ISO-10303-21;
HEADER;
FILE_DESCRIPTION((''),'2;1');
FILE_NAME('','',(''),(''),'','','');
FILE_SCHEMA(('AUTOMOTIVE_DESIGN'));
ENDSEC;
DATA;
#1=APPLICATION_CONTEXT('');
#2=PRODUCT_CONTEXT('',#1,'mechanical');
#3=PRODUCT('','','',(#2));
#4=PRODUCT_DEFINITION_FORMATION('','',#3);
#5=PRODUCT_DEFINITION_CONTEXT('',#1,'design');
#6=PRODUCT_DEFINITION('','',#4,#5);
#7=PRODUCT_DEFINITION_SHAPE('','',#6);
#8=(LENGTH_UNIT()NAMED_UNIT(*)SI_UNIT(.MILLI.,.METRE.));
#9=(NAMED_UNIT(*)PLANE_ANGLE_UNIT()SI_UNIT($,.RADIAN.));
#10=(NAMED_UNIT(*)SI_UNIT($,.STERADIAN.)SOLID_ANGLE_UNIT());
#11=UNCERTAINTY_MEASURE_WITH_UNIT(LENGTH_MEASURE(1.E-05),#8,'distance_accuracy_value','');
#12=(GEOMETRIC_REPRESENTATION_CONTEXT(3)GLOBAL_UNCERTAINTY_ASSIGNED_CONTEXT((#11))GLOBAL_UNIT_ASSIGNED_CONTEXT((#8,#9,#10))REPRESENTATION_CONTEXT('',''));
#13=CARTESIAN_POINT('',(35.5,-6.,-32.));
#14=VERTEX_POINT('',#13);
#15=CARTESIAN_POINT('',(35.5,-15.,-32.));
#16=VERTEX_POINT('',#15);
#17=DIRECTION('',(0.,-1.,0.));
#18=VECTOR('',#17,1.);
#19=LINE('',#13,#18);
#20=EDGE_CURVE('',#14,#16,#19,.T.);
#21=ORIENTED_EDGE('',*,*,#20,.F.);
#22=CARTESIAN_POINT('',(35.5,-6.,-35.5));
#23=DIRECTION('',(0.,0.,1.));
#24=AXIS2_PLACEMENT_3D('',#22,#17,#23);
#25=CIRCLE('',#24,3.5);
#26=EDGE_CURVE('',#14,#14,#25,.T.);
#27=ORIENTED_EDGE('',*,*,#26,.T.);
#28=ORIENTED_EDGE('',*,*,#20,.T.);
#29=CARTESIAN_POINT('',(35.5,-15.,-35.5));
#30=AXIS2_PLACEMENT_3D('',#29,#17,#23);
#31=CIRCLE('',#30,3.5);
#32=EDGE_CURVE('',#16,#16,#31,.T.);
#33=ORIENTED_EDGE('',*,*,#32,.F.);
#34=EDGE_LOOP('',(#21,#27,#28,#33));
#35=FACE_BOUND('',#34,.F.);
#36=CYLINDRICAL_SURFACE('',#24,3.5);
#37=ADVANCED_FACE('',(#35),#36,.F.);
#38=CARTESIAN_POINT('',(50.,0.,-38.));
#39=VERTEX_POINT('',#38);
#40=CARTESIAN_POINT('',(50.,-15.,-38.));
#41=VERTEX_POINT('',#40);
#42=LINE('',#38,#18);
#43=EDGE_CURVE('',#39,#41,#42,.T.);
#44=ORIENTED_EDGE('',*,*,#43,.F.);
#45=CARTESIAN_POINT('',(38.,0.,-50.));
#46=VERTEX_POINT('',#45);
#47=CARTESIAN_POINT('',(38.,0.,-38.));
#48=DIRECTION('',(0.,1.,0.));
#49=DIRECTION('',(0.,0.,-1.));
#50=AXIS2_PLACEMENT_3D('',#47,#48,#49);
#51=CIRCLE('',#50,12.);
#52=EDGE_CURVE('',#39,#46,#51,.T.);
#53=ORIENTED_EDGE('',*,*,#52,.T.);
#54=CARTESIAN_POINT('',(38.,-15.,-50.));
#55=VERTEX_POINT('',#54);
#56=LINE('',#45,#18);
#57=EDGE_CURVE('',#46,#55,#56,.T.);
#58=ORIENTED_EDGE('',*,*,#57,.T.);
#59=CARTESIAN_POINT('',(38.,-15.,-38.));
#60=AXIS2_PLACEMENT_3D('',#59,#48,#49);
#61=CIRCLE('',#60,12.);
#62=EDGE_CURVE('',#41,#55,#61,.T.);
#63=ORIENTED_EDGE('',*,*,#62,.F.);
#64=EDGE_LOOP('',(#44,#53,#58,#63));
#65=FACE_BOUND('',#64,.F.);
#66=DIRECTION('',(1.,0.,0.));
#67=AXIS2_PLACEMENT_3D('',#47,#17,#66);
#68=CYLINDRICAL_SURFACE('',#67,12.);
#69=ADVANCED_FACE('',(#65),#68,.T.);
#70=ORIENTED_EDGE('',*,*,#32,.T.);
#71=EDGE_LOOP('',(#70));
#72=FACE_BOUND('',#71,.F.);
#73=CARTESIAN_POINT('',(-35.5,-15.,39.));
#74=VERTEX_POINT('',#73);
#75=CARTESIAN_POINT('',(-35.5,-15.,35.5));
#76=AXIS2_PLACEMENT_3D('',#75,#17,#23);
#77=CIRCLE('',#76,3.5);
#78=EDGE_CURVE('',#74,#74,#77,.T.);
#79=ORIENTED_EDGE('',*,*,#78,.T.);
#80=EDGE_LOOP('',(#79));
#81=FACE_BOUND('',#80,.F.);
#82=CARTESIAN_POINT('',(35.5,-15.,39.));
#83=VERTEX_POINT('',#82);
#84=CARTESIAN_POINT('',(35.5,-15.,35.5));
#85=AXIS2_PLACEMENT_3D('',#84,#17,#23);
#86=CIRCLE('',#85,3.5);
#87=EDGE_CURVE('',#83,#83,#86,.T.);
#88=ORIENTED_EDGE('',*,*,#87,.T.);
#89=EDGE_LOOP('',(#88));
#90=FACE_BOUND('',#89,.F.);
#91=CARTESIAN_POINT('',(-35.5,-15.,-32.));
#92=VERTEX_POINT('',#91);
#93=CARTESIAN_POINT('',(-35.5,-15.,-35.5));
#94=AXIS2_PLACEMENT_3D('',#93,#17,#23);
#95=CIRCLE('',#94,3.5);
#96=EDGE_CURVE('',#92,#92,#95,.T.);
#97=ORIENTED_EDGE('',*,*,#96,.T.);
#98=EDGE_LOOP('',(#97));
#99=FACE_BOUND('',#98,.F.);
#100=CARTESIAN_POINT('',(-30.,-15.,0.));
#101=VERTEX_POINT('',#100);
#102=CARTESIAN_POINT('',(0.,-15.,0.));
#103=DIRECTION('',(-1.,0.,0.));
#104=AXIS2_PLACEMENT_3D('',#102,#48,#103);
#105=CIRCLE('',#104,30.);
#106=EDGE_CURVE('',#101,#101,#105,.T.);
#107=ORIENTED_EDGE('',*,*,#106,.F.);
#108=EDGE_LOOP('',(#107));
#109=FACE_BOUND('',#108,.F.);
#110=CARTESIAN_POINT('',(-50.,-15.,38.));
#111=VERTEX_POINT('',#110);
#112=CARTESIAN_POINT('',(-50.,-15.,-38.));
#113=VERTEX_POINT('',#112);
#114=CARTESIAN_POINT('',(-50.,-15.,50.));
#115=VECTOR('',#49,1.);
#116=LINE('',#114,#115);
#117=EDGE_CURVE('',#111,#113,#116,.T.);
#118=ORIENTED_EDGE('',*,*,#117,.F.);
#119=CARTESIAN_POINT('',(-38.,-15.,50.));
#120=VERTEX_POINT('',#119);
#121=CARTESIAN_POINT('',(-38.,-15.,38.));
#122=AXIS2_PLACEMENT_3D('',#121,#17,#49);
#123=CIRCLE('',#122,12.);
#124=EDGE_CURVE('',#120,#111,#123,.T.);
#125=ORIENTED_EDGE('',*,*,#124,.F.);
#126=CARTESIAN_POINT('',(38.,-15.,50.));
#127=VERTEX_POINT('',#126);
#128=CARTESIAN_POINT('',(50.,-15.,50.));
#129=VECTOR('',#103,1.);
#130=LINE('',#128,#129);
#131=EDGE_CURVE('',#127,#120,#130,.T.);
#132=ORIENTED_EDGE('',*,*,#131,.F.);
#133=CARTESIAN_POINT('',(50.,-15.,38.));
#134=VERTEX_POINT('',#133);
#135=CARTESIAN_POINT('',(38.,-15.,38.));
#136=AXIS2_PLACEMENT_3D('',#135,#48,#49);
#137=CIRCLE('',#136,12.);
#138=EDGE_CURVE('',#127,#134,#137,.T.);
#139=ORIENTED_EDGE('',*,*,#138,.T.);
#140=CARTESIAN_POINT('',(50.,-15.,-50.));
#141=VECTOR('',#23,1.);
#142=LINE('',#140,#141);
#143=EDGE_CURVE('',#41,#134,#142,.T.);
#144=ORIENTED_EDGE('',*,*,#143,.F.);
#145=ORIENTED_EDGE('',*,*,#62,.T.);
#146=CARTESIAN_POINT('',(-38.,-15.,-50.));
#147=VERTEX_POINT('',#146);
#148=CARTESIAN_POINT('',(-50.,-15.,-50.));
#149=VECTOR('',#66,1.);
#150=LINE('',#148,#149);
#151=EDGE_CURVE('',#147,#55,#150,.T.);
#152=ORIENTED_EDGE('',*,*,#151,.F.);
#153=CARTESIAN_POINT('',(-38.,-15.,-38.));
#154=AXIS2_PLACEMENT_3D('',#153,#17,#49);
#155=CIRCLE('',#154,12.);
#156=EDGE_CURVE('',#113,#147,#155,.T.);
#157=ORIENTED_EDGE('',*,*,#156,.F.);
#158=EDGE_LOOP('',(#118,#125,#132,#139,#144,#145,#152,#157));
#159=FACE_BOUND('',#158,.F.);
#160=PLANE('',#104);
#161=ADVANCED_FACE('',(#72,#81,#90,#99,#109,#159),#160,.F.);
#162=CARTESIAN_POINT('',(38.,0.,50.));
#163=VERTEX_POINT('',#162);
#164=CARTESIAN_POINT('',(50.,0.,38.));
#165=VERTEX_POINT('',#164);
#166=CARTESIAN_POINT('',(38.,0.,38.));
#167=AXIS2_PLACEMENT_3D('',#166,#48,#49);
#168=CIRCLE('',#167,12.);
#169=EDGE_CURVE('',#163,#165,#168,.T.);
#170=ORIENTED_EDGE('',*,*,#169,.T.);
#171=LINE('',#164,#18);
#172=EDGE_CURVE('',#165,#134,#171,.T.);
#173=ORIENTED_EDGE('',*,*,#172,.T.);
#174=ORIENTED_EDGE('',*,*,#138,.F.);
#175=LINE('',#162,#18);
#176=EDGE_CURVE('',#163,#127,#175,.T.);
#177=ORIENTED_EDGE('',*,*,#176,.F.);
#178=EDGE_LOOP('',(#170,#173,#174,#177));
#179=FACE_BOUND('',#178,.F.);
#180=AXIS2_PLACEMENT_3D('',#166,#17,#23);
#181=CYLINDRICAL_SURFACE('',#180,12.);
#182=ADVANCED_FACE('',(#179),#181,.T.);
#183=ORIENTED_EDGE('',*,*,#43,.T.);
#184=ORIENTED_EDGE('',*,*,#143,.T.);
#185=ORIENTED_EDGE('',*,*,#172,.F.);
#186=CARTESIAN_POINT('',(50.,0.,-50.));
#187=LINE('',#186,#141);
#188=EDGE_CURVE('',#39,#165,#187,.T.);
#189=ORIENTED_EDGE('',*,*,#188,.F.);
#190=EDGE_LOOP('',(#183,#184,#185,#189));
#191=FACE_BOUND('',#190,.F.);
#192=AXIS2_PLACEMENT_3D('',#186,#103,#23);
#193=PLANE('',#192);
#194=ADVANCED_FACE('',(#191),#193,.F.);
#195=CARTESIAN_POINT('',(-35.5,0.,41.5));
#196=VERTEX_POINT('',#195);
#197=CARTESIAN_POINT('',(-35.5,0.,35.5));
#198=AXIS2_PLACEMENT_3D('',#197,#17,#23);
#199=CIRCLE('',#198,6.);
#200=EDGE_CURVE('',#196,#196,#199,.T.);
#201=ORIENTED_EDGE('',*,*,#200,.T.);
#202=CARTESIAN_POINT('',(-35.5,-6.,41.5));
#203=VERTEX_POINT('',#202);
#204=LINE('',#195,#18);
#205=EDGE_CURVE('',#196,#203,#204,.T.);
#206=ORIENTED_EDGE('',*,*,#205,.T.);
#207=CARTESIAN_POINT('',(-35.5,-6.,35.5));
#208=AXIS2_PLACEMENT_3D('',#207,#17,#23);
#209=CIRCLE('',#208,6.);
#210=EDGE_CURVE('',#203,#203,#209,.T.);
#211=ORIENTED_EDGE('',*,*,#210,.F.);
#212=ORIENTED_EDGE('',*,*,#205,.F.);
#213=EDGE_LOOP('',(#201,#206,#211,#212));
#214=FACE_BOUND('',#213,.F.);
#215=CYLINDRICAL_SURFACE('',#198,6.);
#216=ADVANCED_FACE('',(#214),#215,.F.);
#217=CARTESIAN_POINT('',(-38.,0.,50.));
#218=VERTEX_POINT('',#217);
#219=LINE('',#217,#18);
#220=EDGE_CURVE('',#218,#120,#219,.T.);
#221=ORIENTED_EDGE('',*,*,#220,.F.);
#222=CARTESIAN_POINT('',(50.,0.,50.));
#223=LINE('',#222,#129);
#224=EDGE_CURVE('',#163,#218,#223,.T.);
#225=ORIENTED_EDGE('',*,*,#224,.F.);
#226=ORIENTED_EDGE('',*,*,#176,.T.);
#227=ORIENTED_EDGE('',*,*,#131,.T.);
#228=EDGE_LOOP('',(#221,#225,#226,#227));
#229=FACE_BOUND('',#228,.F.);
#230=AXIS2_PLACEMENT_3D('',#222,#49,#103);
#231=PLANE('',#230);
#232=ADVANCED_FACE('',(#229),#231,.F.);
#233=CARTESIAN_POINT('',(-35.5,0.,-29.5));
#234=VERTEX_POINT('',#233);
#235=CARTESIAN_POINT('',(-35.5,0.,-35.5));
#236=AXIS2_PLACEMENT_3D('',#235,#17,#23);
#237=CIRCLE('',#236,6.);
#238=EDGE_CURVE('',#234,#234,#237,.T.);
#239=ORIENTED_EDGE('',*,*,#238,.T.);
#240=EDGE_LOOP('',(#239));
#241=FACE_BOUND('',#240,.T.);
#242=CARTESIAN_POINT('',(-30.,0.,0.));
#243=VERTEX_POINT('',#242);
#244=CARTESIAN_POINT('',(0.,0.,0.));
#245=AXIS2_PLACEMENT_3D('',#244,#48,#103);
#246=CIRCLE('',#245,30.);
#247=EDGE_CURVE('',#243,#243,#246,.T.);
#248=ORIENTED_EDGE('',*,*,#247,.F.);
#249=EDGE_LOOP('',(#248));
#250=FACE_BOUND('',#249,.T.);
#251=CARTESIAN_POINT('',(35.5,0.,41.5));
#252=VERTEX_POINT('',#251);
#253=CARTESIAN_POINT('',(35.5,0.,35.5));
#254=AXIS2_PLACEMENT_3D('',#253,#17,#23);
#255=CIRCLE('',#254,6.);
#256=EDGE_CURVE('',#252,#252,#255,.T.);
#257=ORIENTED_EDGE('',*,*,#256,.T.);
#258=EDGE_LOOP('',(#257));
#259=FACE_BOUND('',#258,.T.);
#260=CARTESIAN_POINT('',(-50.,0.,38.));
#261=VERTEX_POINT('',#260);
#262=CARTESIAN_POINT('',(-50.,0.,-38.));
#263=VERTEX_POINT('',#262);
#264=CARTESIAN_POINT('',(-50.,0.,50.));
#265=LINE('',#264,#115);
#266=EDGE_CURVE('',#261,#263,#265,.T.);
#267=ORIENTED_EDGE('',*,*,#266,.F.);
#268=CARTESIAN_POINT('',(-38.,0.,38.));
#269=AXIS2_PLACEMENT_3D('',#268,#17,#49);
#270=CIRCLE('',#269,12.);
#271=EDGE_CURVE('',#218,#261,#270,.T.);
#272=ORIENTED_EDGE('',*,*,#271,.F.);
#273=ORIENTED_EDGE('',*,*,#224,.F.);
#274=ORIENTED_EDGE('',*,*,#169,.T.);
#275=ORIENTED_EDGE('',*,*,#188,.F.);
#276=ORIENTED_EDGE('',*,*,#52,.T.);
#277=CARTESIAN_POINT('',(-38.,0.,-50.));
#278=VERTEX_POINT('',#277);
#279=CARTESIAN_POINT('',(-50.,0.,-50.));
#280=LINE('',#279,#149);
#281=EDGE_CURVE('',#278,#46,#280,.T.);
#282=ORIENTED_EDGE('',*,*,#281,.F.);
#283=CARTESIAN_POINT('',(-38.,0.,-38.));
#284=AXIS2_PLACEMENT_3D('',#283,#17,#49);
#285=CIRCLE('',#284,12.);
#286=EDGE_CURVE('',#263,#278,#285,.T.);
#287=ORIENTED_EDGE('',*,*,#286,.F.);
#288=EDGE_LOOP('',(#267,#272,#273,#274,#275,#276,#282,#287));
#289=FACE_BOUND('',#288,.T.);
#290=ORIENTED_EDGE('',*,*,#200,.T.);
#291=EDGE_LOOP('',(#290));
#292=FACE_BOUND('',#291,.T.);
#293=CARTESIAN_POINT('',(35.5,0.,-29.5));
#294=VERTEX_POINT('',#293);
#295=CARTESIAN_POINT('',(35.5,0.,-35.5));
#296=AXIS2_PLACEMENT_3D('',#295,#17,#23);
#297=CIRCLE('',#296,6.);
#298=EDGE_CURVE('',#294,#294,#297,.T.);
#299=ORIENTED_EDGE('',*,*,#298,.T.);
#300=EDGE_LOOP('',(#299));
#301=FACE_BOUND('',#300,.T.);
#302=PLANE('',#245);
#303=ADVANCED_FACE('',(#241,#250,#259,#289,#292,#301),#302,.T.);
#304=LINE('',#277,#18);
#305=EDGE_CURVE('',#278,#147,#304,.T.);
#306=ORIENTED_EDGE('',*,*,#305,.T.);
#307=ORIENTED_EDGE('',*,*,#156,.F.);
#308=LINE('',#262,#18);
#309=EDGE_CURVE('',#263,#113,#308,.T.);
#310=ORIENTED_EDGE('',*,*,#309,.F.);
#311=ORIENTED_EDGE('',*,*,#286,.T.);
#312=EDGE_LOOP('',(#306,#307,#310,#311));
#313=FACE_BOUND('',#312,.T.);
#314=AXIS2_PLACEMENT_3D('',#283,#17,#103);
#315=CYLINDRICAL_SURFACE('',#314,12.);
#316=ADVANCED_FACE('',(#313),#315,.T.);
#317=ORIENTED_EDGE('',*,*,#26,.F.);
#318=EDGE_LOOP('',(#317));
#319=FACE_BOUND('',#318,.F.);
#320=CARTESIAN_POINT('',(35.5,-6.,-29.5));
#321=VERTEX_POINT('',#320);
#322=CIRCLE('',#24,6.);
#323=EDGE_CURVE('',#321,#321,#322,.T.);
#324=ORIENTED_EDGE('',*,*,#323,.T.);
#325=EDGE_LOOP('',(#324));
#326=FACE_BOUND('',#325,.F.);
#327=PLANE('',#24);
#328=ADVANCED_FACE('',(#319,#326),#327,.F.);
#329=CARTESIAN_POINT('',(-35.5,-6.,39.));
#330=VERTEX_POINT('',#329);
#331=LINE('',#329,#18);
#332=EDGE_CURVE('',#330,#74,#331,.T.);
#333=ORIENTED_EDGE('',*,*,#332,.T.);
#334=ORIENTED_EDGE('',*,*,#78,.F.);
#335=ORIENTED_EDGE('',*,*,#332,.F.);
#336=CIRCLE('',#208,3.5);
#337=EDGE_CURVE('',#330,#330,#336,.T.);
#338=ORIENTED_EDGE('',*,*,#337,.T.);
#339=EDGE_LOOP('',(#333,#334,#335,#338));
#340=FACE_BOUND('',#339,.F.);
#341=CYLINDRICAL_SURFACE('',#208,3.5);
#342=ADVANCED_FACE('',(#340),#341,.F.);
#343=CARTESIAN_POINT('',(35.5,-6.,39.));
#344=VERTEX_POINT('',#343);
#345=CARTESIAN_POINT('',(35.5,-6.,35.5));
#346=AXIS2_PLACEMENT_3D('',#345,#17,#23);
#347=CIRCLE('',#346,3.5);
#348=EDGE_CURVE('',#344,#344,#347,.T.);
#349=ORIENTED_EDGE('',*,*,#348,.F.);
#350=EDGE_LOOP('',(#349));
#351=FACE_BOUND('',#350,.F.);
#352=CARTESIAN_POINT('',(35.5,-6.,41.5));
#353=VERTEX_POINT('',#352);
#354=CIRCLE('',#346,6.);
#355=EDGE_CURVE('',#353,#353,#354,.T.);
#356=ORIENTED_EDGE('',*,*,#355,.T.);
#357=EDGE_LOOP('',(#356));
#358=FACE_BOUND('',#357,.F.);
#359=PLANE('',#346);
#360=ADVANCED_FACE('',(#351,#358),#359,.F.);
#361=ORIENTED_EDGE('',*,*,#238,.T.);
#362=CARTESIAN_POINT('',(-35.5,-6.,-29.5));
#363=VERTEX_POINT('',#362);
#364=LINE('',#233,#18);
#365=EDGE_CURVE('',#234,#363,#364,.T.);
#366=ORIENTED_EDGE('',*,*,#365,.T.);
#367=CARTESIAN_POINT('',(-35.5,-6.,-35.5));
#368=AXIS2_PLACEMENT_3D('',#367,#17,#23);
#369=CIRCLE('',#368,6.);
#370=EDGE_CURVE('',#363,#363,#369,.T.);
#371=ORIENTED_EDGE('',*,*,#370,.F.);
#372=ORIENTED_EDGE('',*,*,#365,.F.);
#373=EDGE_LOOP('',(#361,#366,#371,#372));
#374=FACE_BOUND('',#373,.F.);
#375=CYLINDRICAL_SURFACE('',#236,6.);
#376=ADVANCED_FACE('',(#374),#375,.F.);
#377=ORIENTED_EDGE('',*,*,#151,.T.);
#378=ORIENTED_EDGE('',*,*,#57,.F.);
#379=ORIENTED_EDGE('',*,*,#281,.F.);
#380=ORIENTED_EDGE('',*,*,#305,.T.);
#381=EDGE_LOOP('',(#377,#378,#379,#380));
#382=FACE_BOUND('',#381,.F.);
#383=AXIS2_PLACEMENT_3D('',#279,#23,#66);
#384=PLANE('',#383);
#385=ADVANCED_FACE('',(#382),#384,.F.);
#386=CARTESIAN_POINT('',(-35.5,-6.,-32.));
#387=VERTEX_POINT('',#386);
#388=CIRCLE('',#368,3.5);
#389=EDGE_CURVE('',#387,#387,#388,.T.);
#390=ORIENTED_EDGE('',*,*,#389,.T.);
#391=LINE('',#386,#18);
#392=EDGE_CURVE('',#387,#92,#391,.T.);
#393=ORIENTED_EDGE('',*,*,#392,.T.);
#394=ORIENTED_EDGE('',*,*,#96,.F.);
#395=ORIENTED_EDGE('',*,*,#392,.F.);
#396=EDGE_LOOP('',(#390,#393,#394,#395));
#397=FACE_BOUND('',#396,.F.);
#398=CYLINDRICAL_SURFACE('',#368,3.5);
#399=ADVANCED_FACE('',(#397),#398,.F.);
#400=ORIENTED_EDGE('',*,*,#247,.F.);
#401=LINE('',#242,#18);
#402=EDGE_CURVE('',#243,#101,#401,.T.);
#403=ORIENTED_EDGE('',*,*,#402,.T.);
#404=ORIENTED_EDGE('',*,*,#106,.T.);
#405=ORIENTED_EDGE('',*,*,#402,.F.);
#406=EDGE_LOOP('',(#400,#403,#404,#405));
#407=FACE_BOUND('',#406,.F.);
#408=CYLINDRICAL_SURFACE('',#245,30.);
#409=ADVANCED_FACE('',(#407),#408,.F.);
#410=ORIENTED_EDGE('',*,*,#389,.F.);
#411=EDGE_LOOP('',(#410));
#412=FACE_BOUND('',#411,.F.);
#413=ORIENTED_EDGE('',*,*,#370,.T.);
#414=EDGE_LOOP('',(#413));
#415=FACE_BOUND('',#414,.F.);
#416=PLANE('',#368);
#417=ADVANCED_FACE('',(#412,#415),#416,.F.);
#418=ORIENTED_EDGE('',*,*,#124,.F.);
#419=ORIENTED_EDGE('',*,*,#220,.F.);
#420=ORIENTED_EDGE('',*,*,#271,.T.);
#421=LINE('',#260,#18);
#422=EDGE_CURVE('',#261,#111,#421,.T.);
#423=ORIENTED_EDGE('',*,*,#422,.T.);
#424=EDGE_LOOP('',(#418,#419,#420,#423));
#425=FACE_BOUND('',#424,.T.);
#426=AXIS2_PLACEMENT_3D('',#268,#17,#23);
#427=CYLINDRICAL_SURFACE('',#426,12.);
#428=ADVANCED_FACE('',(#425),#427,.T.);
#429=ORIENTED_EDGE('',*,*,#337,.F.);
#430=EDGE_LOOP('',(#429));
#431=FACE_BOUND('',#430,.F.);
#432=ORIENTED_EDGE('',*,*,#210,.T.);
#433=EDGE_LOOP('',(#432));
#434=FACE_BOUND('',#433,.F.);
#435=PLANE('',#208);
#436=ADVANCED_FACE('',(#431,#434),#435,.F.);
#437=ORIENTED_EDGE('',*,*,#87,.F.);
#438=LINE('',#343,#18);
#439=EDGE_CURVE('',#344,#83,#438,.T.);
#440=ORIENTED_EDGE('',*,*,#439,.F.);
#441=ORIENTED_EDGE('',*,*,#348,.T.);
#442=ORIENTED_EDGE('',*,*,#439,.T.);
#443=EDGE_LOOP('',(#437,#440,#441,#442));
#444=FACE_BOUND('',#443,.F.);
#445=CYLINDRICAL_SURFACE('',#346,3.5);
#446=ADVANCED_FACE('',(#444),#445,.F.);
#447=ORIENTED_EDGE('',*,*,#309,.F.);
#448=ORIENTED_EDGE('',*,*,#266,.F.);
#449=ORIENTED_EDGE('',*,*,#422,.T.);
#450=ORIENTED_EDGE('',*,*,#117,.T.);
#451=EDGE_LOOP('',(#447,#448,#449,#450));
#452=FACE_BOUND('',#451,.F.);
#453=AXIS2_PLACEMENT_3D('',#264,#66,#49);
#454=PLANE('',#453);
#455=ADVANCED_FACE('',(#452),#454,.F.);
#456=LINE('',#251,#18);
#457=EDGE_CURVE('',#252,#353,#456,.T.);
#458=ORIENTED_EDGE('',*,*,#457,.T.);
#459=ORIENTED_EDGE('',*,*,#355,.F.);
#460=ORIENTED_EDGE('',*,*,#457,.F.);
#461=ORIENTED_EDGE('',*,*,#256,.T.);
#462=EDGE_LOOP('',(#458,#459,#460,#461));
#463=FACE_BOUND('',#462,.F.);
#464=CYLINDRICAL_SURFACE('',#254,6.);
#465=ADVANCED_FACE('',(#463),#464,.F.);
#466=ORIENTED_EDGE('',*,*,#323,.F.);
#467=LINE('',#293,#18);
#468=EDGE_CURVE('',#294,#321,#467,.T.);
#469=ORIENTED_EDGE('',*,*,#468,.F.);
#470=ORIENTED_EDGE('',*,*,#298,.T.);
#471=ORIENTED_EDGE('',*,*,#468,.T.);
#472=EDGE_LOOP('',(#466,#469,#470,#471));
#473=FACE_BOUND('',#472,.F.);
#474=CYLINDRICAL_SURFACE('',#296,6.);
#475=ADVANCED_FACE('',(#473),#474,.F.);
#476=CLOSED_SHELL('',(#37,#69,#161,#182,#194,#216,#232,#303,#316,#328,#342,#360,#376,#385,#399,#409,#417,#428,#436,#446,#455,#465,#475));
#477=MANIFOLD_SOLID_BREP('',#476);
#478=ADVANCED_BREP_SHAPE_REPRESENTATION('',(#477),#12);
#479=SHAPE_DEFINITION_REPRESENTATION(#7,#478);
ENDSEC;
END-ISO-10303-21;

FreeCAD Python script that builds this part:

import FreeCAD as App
import Part
import Sketcher

V = App.Vector


def edges_at(feature, points):
    """Names of the edges that pass closest to the given points."""
    edges = feature.Shape.Edges
    near = lambda p: min(range(len(edges)), key=lambda i: edges[i].distToShape(Part.Vertex(*p))[0])
    return sorted({f"Edge{near(p) + 1}" for p in points})


def add_polygon(sketch, points):
    """Adds a closed chain of lines whose ends are joined by coincident constraints."""
    first, n = sketch.GeometryCount, len(points)
    for a, b in zip(points, points[1:] + points[:1]):
        sketch.addGeometry(Part.LineSegment(App.Vector(*a, 0), App.Vector(*b, 0)), False)
    for i in range(n):
        sketch.addConstraint(Sketcher.Constraint("Coincident", first + i, 2, first + (i + 1) % n, 1))

doc = App.newDocument("Part")
params = doc.addObject("Spreadsheet::Sheet", "Params")
for row, (alias, value) in enumerate([
    ("sketch1_diameter", "60 mm"),
    ("sketch1_width", "100 mm"),
    ("pad1_length", "15 mm"),
    ("sketch2_diameter", "7 mm"),
    ("hole_diameter", "7 mm"),
    ("hole_cbore_diameter", "12 mm"),
    ("hole_cbore_depth", "6 mm"),
    ("fillet_radius", "12 mm"),
], start=1):
    params.set(f"A{row}", alias)
    params.set(f"B{row}", "=" + value)
    params.setAlias(f"B{row}", alias)

body = doc.addObject("PartDesign::Body", "Body")

sketch1 = body.newObject("Sketcher::SketchObject", "Sketch")
sketch1.AttachmentSupport = (doc.getObject("XZ_Plane"), [""])
sketch1.MapMode = "FlatFace"
add_polygon(sketch1, [(-50, 50), (50, 50), (50, -50), (-50, -50)])
sketch1.addGeometry(Part.Circle(V(0, 0, 0), V(0, 0, 1), 30), False)
sketch1.addConstraint([
    Sketcher.Constraint("Horizontal", 0),
    Sketcher.Constraint("Vertical", 1),
    Sketcher.Constraint("Horizontal", 2),
    Sketcher.Constraint("Vertical", 3),
    Sketcher.Constraint("Coincident", 4, 3, -1, 1),
    Sketcher.Constraint("Symmetric", 0, 2, 2, 2, -1, 1),
    Sketcher.Constraint("Equal", 2, 1),
    Sketcher.Constraint("Diameter", 4, 60.0),
    Sketcher.Constraint("DistanceX", 0, 1, 0, 2, 100.0),
])
sketch1.setExpression("Constraints[11]", "Params.sketch1_diameter")
sketch1.setExpression("Constraints[12]", "Params.sketch1_width")
pad1 = body.newObject("PartDesign::Pad", "Pad")
pad1.Profile = sketch1
pad1.setExpression("Length", "Params.pad1_length")

sketch2 = body.newObject("Sketcher::SketchObject", "Sketch001")
sketch2.AttachmentSupport = (doc.getObject("XZ_Plane"), [""])
sketch2.MapMode = "FlatFace"
sketch2.addGeometry([
    Part.Circle(V(-35.5, -35.5, 0), V(0, 0, 1), 3.5),
    Part.Circle(V(35.5, -35.5, 0), V(0, 0, 1), 3.5),
    Part.Circle(V(35.5, 35.5, 0), V(0, 0, 1), 3.5),
    Part.Circle(V(-35.5, 35.5, 0), V(0, 0, 1), 3.5),
], False)
sketch2.addConstraint([
    Sketcher.Constraint("Equal", 0, 1),
    Sketcher.Constraint("Equal", 1, 2),
    Sketcher.Constraint("Equal", 2, 3),
    Sketcher.Constraint("Symmetric", 0, 3, 2, 3, -1, 1),
    Sketcher.Constraint("Symmetric", 1, 3, 3, 3, -1, 1),
    Sketcher.Constraint("Symmetric", 0, 3, 1, 3, -2),
    Sketcher.Constraint("Diameter", 0, 7.0),
    Sketcher.Constraint("DistanceX", 0, 3, 1, 3, 71.0),
    Sketcher.Constraint("DistanceY", 1, 3, 2, 3, 71.0),
])
sketch2.setExpression("Constraints[6]", "Params.sketch2_diameter")
doc.recompute()
hole = body.newObject("PartDesign::Hole", "Hole")
hole.Profile = sketch2
hole.ThreadType = "None"
hole.setExpression("Diameter", "Params.hole_diameter")
hole.DepthType = "ThroughAll"
hole.HoleCutType = "Counterbore"
hole.setExpression("HoleCutDiameter", "Params.hole_cbore_diameter")
hole.setExpression("HoleCutDepth", "Params.hole_cbore_depth")
hole.Reversed = True
doc.recompute()

fillet = body.newObject("PartDesign::Fillet", "Fillet")
fillet.Base = (hole, edges_at(hole, [
    (-50, -7.5, 50),
    (-50, -7.5, -50),
    (50, -7.5, -50),
    (50, -7.5, 50),
]))
fillet.setExpression("Radius", "Params.fillet_radius")

doc.recompute()
